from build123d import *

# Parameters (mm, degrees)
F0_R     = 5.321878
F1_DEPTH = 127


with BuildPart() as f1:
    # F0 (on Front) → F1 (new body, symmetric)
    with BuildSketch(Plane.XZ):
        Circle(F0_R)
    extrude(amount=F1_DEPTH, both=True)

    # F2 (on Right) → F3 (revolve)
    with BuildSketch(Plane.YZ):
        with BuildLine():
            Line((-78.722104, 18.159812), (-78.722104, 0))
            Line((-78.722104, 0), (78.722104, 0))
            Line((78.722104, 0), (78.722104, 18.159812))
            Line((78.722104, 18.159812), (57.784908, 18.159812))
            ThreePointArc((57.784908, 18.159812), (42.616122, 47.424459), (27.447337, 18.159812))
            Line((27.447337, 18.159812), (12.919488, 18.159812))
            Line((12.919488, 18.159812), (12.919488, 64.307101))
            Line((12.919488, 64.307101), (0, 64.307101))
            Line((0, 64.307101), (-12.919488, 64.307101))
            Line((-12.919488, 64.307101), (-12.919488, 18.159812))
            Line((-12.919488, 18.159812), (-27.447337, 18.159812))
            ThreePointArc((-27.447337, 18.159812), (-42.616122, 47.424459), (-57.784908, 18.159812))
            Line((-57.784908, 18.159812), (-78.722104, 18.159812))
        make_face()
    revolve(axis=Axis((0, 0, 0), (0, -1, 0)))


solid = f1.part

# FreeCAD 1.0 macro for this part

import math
import FreeCAD as App
import Part
import Sketcher
Q = App.Units.Quantity

doc = App.newDocument("Part")
body = doc.addObject("PartDesign::Body", "Body")

# Sketch on XZ plane
sketch1 = body.newObject("Sketcher::SketchObject", "Sketch")
sketch1.AttachmentSupport = (doc.getObject("XZ_Plane"), [""])
sketch1.MapMode = "FlatFace"
sketch1.addGeometry(Part.Circle(App.Vector(0, 0, 0), App.Vector(0, 0, 1), 5), False)
sketch1.addConstraint([
    Sketcher.Constraint("Coincident", 0, 3, -1, 1),
    Sketcher.Constraint("Diameter", 0, 10.643756),
])
pad1 = body.newObject("PartDesign::Pad", "Pad")
pad1.Profile = sketch1
pad1.Length = Q("10 in")
pad1.Midplane = True

# Sketch on YZ plane
sketch2 = body.newObject("Sketcher::SketchObject", "Sketch001")
sketch2.AttachmentSupport = (doc.getObject("YZ_Plane"), [""])
sketch2.MapMode = "FlatFace"
sketch2.addGeometry([
    Part.LineSegment(App.Vector(-79, 18, 0), App.Vector(-79, 0, 0)),  # 0
    Part.LineSegment(App.Vector(-79, 0, 0), App.Vector(79, 0, 0)),  # 1
    Part.LineSegment(App.Vector(79, 0, 0), App.Vector(79, 18, 0)),  # 2
    Part.LineSegment(App.Vector(79, 18, 0), App.Vector(58, 18, 0)),  # 3
    Part.ArcOfCircle(Part.Circle(App.Vector(43, 29, 0), App.Vector(0, 0, 1), 19), math.radians(-35), math.radians(215)),  # 4
    Part.LineSegment(App.Vector(27, 18, 0), App.Vector(13, 18, 0)),  # 5
    Part.LineSegment(App.Vector(13, 18, 0), App.Vector(13, 64, 0)),  # 6
    Part.LineSegment(App.Vector(13, 64, 0), App.Vector(-13, 64, 0)),  # 7
    Part.LineSegment(App.Vector(-13, 64, 0), App.Vector(-13, 18, 0)),  # 8
    Part.LineSegment(App.Vector(-13, 18, 0), App.Vector(-27, 18, 0)),  # 9
    Part.ArcOfCircle(Part.Circle(App.Vector(-43, 29, 0), App.Vector(0, 0, 1), 19), math.radians(-35), math.radians(215)),  # 10
    Part.LineSegment(App.Vector(-58, 18, 0), App.Vector(-79, 18, 0)),  # 11
], False)
sketch2.addConstraint([
    Sketcher.Constraint("Coincident", 0, 2, 1, 1),
    Sketcher.Constraint("Coincident", 1, 2, 2, 1),
    Sketcher.Constraint("Coincident", 2, 2, 3, 1),
    Sketcher.Constraint("Coincident", 3, 2, 4, 1),
    Sketcher.Constraint("Coincident", 4, 2, 5, 1),
    Sketcher.Constraint("Coincident", 5, 2, 6, 1),
    Sketcher.Constraint("Coincident", 6, 2, 7, 1),
    Sketcher.Constraint("Coincident", 7, 2, 8, 1),
    Sketcher.Constraint("Coincident", 8, 2, 9, 1),
    Sketcher.Constraint("Coincident", 9, 2, 10, 1),
    Sketcher.Constraint("Coincident", 10, 2, 11, 1),
    Sketcher.Constraint("Coincident", 11, 2, 0, 1),
    Sketcher.Constraint("Vertical", 0),
    Sketcher.Constraint("Horizontal", 1),
    Sketcher.Constraint("Vertical", 2),
    Sketcher.Constraint("Horizontal", 3),
    Sketcher.Constraint("Horizontal", 5),
    Sketcher.Constraint("Vertical", 6),
    Sketcher.Constraint("Horizontal", 7),
    Sketcher.Constraint("Vertical", 8),
    Sketcher.Constraint("Horizontal", 9),
    Sketcher.Constraint("Horizontal", 11),
    Sketcher.Constraint("Equal", 4, 10),
    Sketcher.Constraint("Symmetric", 0, 2, 1, 2, -1, 1),
    Sketcher.Constraint("Symmetric", 4, 3, 10, 3, -2),
    Sketcher.Constraint("Symmetric", 5, 2, 8, 2, -2),
    Sketcher.Constraint("Horizontal", 3, 2, 4, 2),
    Sketcher.Constraint("Horizontal", 9, 2, 10, 2),
    Sketcher.Constraint("DistanceX", -1, 1, 4, 3, Q("1.6778001 in")),
    Sketcher.Constraint("Radius", 4, 18.563552),
    Sketcher.Constraint("DistanceX", 1, 1, 1, 2, 157.444208),
    Sketcher.Constraint("DistanceX", 5, 2, 5, 1, 14.527849),
    Sketcher.Constraint("DistanceY", 0, 2, 0, 1, 18.159812),
    Sketcher.Constraint("DistanceY", 6, 1, 6, 2, 46.147289),
    Sketcher.Constraint("DistanceX", 3, 2, 3, 1, 20.937196),
])
revolution = body.newObject("PartDesign::Revolution", "Revolution")
revolution.Profile = sketch2
revolution.ReferenceAxis = (sketch2, ["H_Axis"])
revolution.Angle = 360

doc.recompute()
